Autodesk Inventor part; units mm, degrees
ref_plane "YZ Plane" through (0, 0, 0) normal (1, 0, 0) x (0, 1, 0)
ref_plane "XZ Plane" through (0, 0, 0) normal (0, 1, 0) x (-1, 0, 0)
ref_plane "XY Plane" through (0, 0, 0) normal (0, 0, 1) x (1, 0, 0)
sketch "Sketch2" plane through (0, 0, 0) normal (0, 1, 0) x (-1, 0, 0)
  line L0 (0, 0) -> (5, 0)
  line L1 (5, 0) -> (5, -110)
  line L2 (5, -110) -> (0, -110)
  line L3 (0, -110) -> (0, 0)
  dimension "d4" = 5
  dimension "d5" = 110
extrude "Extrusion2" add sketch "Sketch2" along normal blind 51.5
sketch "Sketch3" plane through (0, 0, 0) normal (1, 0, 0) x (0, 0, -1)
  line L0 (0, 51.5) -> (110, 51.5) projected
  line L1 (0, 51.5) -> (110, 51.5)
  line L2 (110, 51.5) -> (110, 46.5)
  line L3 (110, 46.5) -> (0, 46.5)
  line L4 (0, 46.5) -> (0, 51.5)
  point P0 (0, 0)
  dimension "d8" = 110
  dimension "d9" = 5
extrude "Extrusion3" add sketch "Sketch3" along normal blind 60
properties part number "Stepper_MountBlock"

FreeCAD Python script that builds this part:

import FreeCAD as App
import Part
import Sketcher


def add_polygon(sketch, points):
    """Adds a closed chain of lines whose ends are joined by coincident constraints."""
    first, n = sketch.GeometryCount, len(points)
    for a, b in zip(points, points[1:] + points[:1]):
        sketch.addGeometry(Part.LineSegment(App.Vector(*a, 0), App.Vector(*b, 0)), False)
    for i in range(n):
        sketch.addConstraint(Sketcher.Constraint("Coincident", first + i, 2, first + (i + 1) % n, 1))

doc = App.newDocument("Part")
body = doc.addObject("PartDesign::Body", "Body")

# Sketch on XZ plane
sketch1 = body.newObject("Sketcher::SketchObject", "Sketch")
sketch1.AttachmentSupport = (doc.getObject("XZ_Plane"), [""])
sketch1.MapMode = "FlatFace"
add_polygon(sketch1, [(-5, 0), (0, 0), (0, -110), (-5, -110)])  # lines 0-3
sketch1.addConstraint([
    Sketcher.Constraint("Horizontal", 0),
    Sketcher.Constraint("Vertical", 1),
    Sketcher.Constraint("Horizontal", 2),
    Sketcher.Constraint("Vertical", 3),
    Sketcher.Constraint("Coincident", 0, 2, -1, 1),
    Sketcher.Constraint("DistanceX", 0, 1, 0, 2, 5.0),
    Sketcher.Constraint("DistanceY", 1, 2, 1, 1, 110.0),
])
pad1 = body.newObject("PartDesign::Pad", "Pad")
pad1.Profile = sketch1
pad1.Length = 51.5
pad1.Reversed = True

# Sketch on YZ plane
sketch2 = body.newObject("Sketcher::SketchObject", "Sketch001")
sketch2.AttachmentSupport = (doc.getObject("YZ_Plane"), [""])
sketch2.MapMode = "FlatFace"
add_polygon(sketch2, [(52, -110), (52, 0), (46, 0), (46, -110)])  # lines 0-3
sketch2.addConstraint([
    Sketcher.Constraint("Vertical", 0),
    Sketcher.Constraint("Horizontal", 1),
    Sketcher.Constraint("Vertical", 2),
    Sketcher.Constraint("Horizontal", 3),
    Sketcher.Constraint("PointOnObject", 0, 2, -1),
    Sketcher.Constraint("DistanceX", 1, 2, 1, 1, 5.0),
    Sketcher.Constraint("DistanceY", 0, 1, 0, 2, 110.0),
    Sketcher.Constraint("DistanceX", -1, 1, 0, 2, 51.5),
])
pad2 = body.newObject("PartDesign::Pad", "Pad001")
pad2.Profile = sketch2
pad2.Length = 60

doc.recompute()
